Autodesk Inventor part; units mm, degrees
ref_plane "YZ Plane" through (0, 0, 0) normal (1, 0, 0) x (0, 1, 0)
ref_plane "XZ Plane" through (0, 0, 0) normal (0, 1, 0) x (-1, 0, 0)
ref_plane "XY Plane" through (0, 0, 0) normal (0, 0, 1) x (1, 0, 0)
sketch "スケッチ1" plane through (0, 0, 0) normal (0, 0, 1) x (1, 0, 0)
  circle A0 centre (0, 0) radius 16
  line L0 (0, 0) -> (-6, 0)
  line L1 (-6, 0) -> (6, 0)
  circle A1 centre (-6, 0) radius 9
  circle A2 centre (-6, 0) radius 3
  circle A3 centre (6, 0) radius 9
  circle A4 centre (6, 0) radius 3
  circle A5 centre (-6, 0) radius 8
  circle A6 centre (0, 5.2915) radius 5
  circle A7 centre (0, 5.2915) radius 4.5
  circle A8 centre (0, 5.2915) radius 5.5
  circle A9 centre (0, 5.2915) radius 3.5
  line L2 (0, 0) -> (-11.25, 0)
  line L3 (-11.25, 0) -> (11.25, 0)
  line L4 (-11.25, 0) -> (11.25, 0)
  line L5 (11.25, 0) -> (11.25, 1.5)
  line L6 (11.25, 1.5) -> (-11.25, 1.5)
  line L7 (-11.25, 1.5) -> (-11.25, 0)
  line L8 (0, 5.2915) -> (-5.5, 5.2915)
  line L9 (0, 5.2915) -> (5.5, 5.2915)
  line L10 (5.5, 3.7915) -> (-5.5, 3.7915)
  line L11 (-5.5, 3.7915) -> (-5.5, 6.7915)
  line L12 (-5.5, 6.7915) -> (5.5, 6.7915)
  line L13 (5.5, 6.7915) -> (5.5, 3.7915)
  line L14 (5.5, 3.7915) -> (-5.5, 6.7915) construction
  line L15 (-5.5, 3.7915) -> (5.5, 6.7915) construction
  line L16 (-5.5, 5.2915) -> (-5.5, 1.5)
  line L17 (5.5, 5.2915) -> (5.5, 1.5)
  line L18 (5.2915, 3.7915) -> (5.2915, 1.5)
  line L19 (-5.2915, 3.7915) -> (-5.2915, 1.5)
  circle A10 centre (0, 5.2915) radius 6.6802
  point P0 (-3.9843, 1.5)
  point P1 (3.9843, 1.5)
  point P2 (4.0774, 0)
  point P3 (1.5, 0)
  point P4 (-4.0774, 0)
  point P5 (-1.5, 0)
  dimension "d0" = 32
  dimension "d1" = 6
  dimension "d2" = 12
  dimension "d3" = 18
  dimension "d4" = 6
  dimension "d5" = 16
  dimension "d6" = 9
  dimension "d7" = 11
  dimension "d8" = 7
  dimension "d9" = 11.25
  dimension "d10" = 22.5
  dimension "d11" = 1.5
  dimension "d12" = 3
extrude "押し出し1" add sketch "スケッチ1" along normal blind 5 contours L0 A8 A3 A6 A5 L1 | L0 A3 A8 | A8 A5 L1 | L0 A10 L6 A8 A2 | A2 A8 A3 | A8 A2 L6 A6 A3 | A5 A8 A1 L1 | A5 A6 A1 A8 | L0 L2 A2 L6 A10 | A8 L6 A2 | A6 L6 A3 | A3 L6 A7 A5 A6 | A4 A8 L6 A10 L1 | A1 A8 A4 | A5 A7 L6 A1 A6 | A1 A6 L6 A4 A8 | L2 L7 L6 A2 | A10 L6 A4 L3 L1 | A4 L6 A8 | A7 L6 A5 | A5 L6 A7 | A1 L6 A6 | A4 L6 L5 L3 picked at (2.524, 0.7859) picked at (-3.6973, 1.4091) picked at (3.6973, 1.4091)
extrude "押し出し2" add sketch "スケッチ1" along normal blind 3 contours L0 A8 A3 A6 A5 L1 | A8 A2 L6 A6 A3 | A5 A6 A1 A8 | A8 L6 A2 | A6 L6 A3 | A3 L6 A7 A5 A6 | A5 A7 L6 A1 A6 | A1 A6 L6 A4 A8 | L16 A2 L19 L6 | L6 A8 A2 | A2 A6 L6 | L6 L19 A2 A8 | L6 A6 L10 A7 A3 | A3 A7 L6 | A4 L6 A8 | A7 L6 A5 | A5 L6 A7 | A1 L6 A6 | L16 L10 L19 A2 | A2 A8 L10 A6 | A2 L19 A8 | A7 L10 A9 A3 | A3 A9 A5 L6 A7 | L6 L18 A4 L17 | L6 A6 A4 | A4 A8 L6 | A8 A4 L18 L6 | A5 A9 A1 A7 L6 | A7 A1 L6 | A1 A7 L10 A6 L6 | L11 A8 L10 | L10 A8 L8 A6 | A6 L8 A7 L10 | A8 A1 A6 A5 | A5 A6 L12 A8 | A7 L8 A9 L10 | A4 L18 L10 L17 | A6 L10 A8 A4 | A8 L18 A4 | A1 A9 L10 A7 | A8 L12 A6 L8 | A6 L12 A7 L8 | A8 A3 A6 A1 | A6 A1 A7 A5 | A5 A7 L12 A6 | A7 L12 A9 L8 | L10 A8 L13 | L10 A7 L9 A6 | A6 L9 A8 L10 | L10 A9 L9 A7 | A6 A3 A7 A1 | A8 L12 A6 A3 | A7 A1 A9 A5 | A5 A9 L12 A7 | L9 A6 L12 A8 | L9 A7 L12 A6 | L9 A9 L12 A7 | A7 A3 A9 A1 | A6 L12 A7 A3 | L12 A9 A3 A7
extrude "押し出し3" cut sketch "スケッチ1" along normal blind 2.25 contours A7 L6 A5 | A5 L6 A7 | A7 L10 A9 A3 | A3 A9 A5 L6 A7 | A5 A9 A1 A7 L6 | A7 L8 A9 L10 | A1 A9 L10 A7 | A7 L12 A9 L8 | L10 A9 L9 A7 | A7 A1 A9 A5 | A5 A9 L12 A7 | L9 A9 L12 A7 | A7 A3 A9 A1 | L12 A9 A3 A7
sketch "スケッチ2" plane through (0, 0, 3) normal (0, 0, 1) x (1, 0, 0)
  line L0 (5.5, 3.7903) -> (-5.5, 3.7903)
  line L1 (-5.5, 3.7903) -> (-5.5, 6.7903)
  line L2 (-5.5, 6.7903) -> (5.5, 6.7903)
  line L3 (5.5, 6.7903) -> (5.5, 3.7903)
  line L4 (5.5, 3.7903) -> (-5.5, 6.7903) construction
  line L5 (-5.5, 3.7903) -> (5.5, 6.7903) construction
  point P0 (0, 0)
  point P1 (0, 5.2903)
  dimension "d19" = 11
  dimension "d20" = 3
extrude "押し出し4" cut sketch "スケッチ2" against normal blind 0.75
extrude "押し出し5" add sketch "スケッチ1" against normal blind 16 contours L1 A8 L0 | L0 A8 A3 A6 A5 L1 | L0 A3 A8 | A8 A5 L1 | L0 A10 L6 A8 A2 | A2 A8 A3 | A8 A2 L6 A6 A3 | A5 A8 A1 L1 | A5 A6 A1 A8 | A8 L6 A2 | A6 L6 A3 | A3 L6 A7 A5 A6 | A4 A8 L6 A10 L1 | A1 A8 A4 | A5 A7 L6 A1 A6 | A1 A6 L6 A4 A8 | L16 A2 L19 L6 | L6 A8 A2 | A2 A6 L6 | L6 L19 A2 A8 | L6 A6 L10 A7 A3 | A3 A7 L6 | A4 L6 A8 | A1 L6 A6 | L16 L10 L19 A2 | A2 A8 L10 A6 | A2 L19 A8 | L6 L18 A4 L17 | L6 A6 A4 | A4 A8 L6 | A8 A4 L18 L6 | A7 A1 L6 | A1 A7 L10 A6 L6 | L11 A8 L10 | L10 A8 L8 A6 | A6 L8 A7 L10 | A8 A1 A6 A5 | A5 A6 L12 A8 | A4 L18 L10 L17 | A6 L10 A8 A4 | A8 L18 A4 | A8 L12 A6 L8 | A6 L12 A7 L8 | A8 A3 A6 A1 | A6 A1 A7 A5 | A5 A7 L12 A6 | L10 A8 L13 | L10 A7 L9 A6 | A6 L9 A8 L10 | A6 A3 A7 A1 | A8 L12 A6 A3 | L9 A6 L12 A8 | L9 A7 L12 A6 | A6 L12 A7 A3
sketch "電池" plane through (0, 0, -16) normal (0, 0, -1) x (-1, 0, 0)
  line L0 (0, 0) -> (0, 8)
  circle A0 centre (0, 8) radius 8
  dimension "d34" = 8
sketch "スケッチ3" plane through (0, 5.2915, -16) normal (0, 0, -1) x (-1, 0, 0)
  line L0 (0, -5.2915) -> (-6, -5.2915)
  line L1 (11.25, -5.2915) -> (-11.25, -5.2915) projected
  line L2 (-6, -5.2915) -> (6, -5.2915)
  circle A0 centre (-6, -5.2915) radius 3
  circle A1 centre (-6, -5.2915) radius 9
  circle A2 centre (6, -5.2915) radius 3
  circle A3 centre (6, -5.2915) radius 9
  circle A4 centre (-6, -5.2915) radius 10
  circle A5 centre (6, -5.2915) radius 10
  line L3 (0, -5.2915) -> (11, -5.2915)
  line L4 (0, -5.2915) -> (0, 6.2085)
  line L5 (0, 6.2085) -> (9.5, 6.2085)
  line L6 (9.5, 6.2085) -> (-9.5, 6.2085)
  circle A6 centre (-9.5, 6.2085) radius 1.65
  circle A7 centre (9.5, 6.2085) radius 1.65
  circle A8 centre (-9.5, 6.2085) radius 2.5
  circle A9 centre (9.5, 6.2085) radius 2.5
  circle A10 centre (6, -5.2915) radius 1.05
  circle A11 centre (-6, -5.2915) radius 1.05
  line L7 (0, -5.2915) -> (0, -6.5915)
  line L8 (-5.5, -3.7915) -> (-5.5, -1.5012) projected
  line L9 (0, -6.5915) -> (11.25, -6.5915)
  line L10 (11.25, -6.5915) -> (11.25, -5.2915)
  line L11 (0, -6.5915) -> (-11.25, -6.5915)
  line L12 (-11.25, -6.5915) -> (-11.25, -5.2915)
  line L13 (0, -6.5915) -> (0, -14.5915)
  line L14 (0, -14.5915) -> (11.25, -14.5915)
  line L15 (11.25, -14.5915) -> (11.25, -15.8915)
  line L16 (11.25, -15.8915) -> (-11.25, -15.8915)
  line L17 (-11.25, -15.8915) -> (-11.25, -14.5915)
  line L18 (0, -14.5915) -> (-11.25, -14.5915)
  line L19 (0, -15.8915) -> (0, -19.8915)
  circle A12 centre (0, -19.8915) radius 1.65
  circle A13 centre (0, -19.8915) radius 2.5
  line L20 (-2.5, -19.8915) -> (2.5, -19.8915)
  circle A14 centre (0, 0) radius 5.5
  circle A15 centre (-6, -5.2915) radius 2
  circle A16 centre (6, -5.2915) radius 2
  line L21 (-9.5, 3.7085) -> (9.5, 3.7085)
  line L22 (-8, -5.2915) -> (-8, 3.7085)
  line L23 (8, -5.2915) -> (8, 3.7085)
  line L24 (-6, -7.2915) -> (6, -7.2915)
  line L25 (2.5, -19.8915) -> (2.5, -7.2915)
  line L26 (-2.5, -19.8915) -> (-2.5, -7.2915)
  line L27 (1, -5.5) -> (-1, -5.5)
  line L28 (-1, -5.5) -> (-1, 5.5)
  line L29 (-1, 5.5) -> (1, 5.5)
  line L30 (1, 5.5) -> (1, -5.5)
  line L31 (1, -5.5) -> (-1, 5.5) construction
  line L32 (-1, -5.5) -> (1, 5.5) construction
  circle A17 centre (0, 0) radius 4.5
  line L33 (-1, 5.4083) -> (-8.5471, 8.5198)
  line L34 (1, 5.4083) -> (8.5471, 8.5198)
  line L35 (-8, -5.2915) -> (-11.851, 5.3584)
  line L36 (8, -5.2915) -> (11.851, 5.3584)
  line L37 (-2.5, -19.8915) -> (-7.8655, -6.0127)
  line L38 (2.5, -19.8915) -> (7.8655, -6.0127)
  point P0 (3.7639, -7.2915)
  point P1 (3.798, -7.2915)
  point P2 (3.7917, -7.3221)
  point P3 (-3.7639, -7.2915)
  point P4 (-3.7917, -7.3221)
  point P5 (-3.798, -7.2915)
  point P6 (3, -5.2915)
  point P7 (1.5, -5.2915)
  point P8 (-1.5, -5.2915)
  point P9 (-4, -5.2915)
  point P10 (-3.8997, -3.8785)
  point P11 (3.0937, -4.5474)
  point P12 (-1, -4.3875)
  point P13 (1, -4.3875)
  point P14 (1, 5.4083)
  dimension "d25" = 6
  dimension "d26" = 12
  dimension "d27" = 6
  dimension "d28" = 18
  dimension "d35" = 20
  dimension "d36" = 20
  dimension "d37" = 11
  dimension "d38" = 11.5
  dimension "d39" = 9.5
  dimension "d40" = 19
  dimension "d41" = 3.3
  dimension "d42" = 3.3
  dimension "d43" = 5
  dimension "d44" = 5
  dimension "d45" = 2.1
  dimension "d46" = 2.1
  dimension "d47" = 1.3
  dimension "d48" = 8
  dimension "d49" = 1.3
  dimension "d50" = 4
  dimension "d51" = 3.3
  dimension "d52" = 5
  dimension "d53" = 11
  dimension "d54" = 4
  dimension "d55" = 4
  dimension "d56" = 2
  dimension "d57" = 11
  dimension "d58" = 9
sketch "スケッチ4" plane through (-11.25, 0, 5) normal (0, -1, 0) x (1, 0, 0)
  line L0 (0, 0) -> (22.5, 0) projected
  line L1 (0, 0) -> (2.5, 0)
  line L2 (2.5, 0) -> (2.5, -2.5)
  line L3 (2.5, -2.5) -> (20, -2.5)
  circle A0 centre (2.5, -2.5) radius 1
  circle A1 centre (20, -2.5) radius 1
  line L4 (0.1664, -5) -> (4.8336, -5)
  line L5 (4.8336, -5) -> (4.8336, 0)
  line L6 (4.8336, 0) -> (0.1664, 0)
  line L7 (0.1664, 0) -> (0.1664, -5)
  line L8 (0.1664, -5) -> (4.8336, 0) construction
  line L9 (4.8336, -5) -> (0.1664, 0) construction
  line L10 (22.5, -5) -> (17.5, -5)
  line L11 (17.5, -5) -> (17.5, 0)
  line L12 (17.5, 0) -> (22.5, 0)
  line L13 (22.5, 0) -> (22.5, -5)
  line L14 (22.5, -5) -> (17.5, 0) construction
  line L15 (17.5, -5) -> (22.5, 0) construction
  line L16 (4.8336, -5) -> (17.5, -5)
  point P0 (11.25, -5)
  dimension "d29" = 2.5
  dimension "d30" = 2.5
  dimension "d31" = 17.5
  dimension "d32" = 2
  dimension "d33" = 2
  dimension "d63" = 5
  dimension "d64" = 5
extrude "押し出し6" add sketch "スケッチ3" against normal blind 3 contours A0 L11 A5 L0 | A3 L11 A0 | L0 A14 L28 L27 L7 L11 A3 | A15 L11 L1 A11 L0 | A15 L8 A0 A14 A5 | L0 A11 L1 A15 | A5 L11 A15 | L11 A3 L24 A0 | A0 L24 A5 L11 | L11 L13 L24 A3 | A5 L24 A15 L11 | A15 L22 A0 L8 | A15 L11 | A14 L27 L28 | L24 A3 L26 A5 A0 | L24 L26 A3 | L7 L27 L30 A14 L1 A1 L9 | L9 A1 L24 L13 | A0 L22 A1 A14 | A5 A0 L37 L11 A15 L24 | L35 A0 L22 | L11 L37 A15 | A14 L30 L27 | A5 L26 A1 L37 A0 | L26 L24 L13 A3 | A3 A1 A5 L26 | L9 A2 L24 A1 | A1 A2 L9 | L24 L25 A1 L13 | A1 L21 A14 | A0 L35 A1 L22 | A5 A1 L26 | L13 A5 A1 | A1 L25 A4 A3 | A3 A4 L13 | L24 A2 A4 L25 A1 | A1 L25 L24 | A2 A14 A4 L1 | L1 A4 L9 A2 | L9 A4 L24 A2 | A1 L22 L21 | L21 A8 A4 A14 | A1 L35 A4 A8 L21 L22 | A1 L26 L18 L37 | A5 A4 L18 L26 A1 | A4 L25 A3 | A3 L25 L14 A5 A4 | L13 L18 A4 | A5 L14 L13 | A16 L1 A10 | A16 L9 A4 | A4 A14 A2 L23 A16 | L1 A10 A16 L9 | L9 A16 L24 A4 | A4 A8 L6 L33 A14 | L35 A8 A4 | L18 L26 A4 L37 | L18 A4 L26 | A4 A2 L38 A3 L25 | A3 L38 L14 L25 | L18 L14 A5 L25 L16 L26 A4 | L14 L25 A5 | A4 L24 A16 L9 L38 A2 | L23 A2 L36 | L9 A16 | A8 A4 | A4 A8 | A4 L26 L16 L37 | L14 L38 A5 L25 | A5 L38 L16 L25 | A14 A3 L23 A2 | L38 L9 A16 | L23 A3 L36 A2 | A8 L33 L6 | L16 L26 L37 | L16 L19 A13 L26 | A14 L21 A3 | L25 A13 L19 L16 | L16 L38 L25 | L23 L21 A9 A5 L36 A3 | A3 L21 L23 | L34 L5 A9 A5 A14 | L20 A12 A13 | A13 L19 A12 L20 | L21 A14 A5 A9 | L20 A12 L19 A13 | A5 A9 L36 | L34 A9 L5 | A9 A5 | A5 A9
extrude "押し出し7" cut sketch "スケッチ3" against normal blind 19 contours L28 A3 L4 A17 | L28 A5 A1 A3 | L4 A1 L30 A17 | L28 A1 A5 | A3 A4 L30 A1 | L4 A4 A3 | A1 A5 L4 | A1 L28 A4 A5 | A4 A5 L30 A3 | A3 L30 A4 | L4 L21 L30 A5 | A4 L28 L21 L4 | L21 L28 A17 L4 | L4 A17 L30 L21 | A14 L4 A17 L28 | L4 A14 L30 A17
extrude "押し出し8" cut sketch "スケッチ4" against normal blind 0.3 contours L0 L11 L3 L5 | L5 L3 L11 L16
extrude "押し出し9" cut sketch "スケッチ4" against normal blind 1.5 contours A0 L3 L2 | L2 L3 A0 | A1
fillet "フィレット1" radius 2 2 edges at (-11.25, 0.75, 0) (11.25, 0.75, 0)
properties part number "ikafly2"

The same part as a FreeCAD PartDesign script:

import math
import FreeCAD as App
import Part
import Sketcher
from FreeCAD import Vector


def edges_at(feature, points):
    """Names of the edges that pass closest to the given points."""
    edges = feature.Shape.Edges
    near = lambda p: min(range(len(edges)), key=lambda i: edges[i].distToShape(Part.Vertex(*p))[0])
    return sorted({f"Edge{near(p) + 1}" for p in points})

doc = App.newDocument("Part")
body = doc.addObject("PartDesign::Body", "Body")

# Sketch on XY plane
sketch1 = doc.addObject("Sketcher::SketchObject", "Sketch")
body.addObject(sketch1)
sketch1.AttachmentSupport = (doc.XY_Plane, [""])
sketch1.MapMode = "FlatFace"
sketch1.addGeometry(Part.LineSegment(Vector(11.2, 0, 0), Vector(11.2, 1.5, 0)), False)
sketch1.addGeometry(Part.LineSegment(Vector(11.2, 1.5, 0), Vector(-11.2, 1.5, 0)), False)
sketch1.addGeometry(Part.LineSegment(Vector(-11.2, 1.5, 0), Vector(-11.2, 0, 0)), False)
sketch1.addGeometry(Part.LineSegment(Vector(-11.2, 0, 0), Vector(11.2, 0, 0)), False)
sketch1.addConstraint(Sketcher.Constraint("Coincident", 0, 2, 1, 1))
sketch1.addConstraint(Sketcher.Constraint("Coincident", 1, 2, 2, 1))
sketch1.addConstraint(Sketcher.Constraint("Coincident", 2, 2, 3, 1))
sketch1.addConstraint(Sketcher.Constraint("Coincident", 3, 2, 0, 1))
sketch1.addConstraint(Sketcher.Constraint("Vertical", 0))
sketch1.addConstraint(Sketcher.Constraint("Horizontal", 1))
sketch1.addConstraint(Sketcher.Constraint("Vertical", 2))
sketch1.addConstraint(Sketcher.Constraint("Horizontal", 3))
sketch1.addConstraint(Sketcher.Constraint("Symmetric", 2, 2, 3, 2, -1, 1))
sketch1.addConstraint(Sketcher.Constraint("DistanceX", 1, 2, 1, 1, 22.5))
sketch1.addConstraint(Sketcher.Constraint("DistanceY", 0, 1, 0, 2, 1.5))
pad1 = doc.addObject("PartDesign::Pad", "Pad")
body.addObject(pad1)
pad1.Profile = sketch1
pad1.Length = 5

# Sketch on XY plane
sketch2 = doc.addObject("Sketcher::SketchObject", "Sketch001")
body.addObject(sketch2)
sketch2.AttachmentSupport = (doc.XY_Plane, [""])
sketch2.MapMode = "FlatFace"
sketch2.addGeometry(Part.LineSegment(Vector(-1.5, 0, 0), Vector(1.5, 0, 0)), False)
sketch2.addGeometry(Part.ArcOfCircle(Part.Circle(Vector(0, 5.3, 0), Vector(0, 0, 1), 5.5), math.radians(-74), math.radians(-44)), False)
sketch2.addGeometry(Part.LineSegment(Vector(4, 1.5, 0), Vector(5.5, 1.5, 0)), False)
sketch2.addGeometry(Part.LineSegment(Vector(5.5, 1.5, 0), Vector(5.5, 5.3, 0)), False)
sketch2.addGeometry(Part.ArcOfCircle(Part.Circle(Vector(0, 5.3, 0), Vector(0, 0, 1), 5.5), math.radians(0), math.radians(180)), False)
sketch2.addGeometry(Part.LineSegment(Vector(-5.5, 5.3, 0), Vector(-5.5, 1.5, 0)), False)
sketch2.addGeometry(Part.LineSegment(Vector(-5.5, 1.5, 0), Vector(-4, 1.5, 0)), False)
sketch2.addGeometry(Part.ArcOfCircle(Part.Circle(Vector(0, 5.3, 0), Vector(0, 0, 1), 5.5), math.radians(-136), math.radians(-106)), False)
sketch2.addGeometry(Part.Circle(Vector(0, 5.3, 0), Vector(0, 0, 1), 3.5), False)
sketch2.addConstraint(Sketcher.Constraint("Coincident", 0, 2, 1, 1))
sketch2.addConstraint(Sketcher.Constraint("Coincident", 1, 2, 2, 1))
sketch2.addConstraint(Sketcher.Constraint("Coincident", 2, 2, 3, 1))
sketch2.addConstraint(Sketcher.Constraint("Tangent", 3, 2, 4, 1))
sketch2.addConstraint(Sketcher.Constraint("Tangent", 4, 2, 5, 1))
sketch2.addConstraint(Sketcher.Constraint("Coincident", 5, 2, 6, 1))
sketch2.addConstraint(Sketcher.Constraint("Coincident", 6, 2, 7, 1))
sketch2.addConstraint(Sketcher.Constraint("Coincident", 7, 2, 0, 1))
sketch2.addConstraint(Sketcher.Constraint("Horizontal", 0))
sketch2.addConstraint(Sketcher.Constraint("Horizontal", 2))
sketch2.addConstraint(Sketcher.Constraint("Vertical", 3))
sketch2.addConstraint(Sketcher.Constraint("Vertical", 5))
sketch2.addConstraint(Sketcher.Constraint("Horizontal", 6))
sketch2.addConstraint(Sketcher.Constraint("Coincident", 4, 3, 1, 3))
sketch2.addConstraint(Sketcher.Constraint("Coincident", 7, 3, 1, 3))
sketch2.addConstraint(Sketcher.Constraint("Coincident", 8, 3, 1, 3))
sketch2.addConstraint(Sketcher.Constraint("Equal", 1, 4))
sketch2.addConstraint(Sketcher.Constraint("Equal", 4, 7))
sketch2.addConstraint(Sketcher.Constraint("Symmetric", 0, 2, 7, 2, -1, 1))
sketch2.addConstraint(Sketcher.Constraint("Horizontal", 2, 2, 5, 2))
sketch2.addConstraint(Sketcher.Constraint("Diameter", 8, 7.0))
sketch2.addConstraint(Sketcher.Constraint("Radius", 1, 5.5))
sketch2.addConstraint(Sketcher.Constraint("DistanceX", 0, 1, 0, 2, 3.0))
sketch2.addConstraint(Sketcher.Constraint("DistanceY", -1, 1, 1, 2, 1.5))
pad2 = doc.addObject("PartDesign::Pad", "Pad001")
body.addObject(pad2)
pad2.Profile = sketch2
pad2.Length = 3

# Sketch on XY plane
sketch3 = doc.addObject("Sketcher::SketchObject", "Sketch002")
body.addObject(sketch3)
sketch3.AttachmentSupport = (doc.XY_Plane, [""])
sketch3.MapMode = "FlatFace"
sketch3.addGeometry(Part.Circle(Vector(0, 5.3, 0), Vector(0, 0, 1), 4.5), False)
sketch3.addGeometry(Part.Circle(Vector(0, 5.3, 0), Vector(0, 0, 1), 3.5), False)
sketch3.addConstraint(Sketcher.Constraint("Coincident", 1, 3, 0, 3))
sketch3.addConstraint(Sketcher.Constraint("PointOnObject", 0, 3, -2))
sketch3.addConstraint(Sketcher.Constraint("Diameter", 0, 9.0))
sketch3.addConstraint(Sketcher.Constraint("Diameter", 1, 7.0))
sketch3.addConstraint(Sketcher.Constraint("DistanceY", -1, 1, 0, 3, 5.2915))
pocket1 = doc.addObject("PartDesign::Pocket", "Pocket")
body.addObject(pocket1)
pocket1.Profile = sketch3
pocket1.Length = 2.25
pocket1.Reversed = True

# Sketch on XY plane
sketch4 = doc.addObject("Sketcher::SketchObject", "Sketch003")
body.addObject(sketch4)
sketch4.AttachmentSupport = (doc.XY_Plane, [""])
sketch4.MapMode = "FlatFace"
sketch4.AttachmentOffset = App.Placement(Vector(0, 0, 3), App.Rotation())
sketch4.addGeometry(Part.LineSegment(Vector(-5.5, 3.8, 0), Vector(5.5, 3.8, 0)), False)
sketch4.addGeometry(Part.LineSegment(Vector(5.5, 3.8, 0), Vector(5.5, 6.8, 0)), False)
sketch4.addGeometry(Part.LineSegment(Vector(5.5, 6.8, 0), Vector(-5.5, 6.8, 0)), False)
sketch4.addGeometry(Part.LineSegment(Vector(-5.5, 6.8, 0), Vector(-5.5, 3.8, 0)), False)
sketch4.addConstraint(Sketcher.Constraint("Coincident", 0, 2, 1, 1))
sketch4.addConstraint(Sketcher.Constraint("Coincident", 1, 2, 2, 1))
sketch4.addConstraint(Sketcher.Constraint("Coincident", 2, 2, 3, 1))
sketch4.addConstraint(Sketcher.Constraint("Coincident", 3, 2, 0, 1))
sketch4.addConstraint(Sketcher.Constraint("Horizontal", 0))
sketch4.addConstraint(Sketcher.Constraint("Vertical", 1))
sketch4.addConstraint(Sketcher.Constraint("Horizontal", 2))
sketch4.addConstraint(Sketcher.Constraint("Vertical", 3))
sketch4.addConstraint(Sketcher.Constraint("DistanceX", 0, 1, 0, 2, 11.0))
sketch4.addConstraint(Sketcher.Constraint("DistanceY", 1, 1, 1, 2, 3.0))
sketch4.addConstraint(Sketcher.Constraint("DistanceX", -1, 1, 0, 2, 5.5))
sketch4.addConstraint(Sketcher.Constraint("DistanceY", -1, 1, 0, 2, 3.7903))
pocket2 = doc.addObject("PartDesign::Pocket", "Pocket001")
body.addObject(pocket2)
pocket2.Profile = sketch4
pocket2.Length = 0.75

# Sketch on XY plane
sketch5 = doc.addObject("Sketcher::SketchObject", "Sketch004")
body.addObject(sketch5)
sketch5.AttachmentSupport = (doc.XY_Plane, [""])
sketch5.MapMode = "FlatFace"
sketch5.addGeometry(Part.ArcOfCircle(Part.Circle(Vector(0, 5.3, 0), Vector(0, 0, 1), 5.5), math.radians(-106), math.radians(-74)), False)
sketch5.addGeometry(Part.LineSegment(Vector(1.5, 0, 0), Vector(4.1, 0, 0)), False)
sketch5.addGeometry(Part.ArcOfCircle(Part.Circle(Vector(0, 5.3, 0), Vector(0, 0, 1), 6.7), math.radians(-52.38), math.radians(-34.58)), False)
sketch5.addGeometry(Part.LineSegment(Vector(5.5, 1.5, 0), Vector(5.5, 5.3, 0)), False)
sketch5.addGeometry(Part.ArcOfCircle(Part.Circle(Vector(0, 5.3, 0), Vector(0, 0, 1), 5.5), math.radians(0), math.radians(180)), False)
sketch5.addGeometry(Part.LineSegment(Vector(-5.5, 5.3, 0), Vector(-5.5, 1.5, 0)), False)
sketch5.addGeometry(Part.ArcOfCircle(Part.Circle(Vector(0, 5.3, 0), Vector(0, 0, 1), 6.7), math.radians(-145.42), math.radians(-127.62)), False)
sketch5.addGeometry(Part.LineSegment(Vector(-4.1, 0, 0), Vector(-1.5, 0, 0)), False)
sketch5.addGeometry(Part.Circle(Vector(0, 5.3, 0), Vector(0, 0, 1), 4.5), False)
sketch5.addConstraint(Sketcher.Constraint("Coincident", 0, 2, 1, 1))
sketch5.addConstraint(Sketcher.Constraint("Coincident", 1, 2, 2, 1))
sketch5.addConstraint(Sketcher.Constraint("Coincident", 2, 2, 3, 1))
sketch5.addConstraint(Sketcher.Constraint("Tangent", 3, 2, 4, 1))
sketch5.addConstraint(Sketcher.Constraint("Tangent", 4, 2, 5, 1))
sketch5.addConstraint(Sketcher.Constraint("Coincident", 5, 2, 6, 1))
sketch5.addConstraint(Sketcher.Constraint("Coincident", 6, 2, 7, 1))
sketch5.addConstraint(Sketcher.Constraint("Coincident", 7, 2, 0, 1))
sketch5.addConstraint(Sketcher.Constraint("Horizontal", 1))
sketch5.addConstraint(Sketcher.Constraint("Vertical", 3))
sketch5.addConstraint(Sketcher.Constraint("Vertical", 5))
sketch5.addConstraint(Sketcher.Constraint("Horizontal", 7))
sketch5.addConstraint(Sketcher.Constraint("Coincident", 2, 3, 0, 3))
sketch5.addConstraint(Sketcher.Constraint("Coincident", 4, 3, 0, 3))
sketch5.addConstraint(Sketcher.Constraint("Coincident", 6, 3, 0, 3))
sketch5.addConstraint(Sketcher.Constraint("Coincident", 8, 3, 0, 3))
sketch5.addConstraint(Sketcher.Constraint("Equal", 0, 4))
sketch5.addConstraint(Sketcher.Constraint("Equal", 2, 6))
sketch5.addConstraint(Sketcher.Constraint("Symmetric", 1, 2, 6, 2, -1, 1))
sketch5.addConstraint(Sketcher.Constraint("PointOnObject", 0, 3, -2))
sketch5.addConstraint(Sketcher.Constraint("Diameter", 8, 9.0))
sketch5.addConstraint(Sketcher.Constraint("Radius", 0, 5.5))
sketch5.addConstraint(Sketcher.Constraint("DistanceX", 7, 2, 0, 2, 3.0))
sketch5.addConstraint(Sketcher.Constraint("DistanceY", -1, 1, 2, 2, 1.5))
pad3 = doc.addObject("PartDesign::Pad", "Pad002")
body.addObject(pad3)
pad3.Profile = sketch5
pad3.Length = 16
pad3.Reversed = True

# Sketch on XY plane
sketch6 = doc.addObject("Sketcher::SketchObject", "Sketch005")
body.addObject(sketch6)
sketch6.AttachmentSupport = (doc.XY_Plane, [""])
sketch6.MapMode = "FlatFace"
sketch6.AttachmentOffset = App.Placement(Vector(0, 0, -16), App.Rotation())
sketch6.addGeometry(Part.ArcOfCircle(Part.Circle(Vector(-6, 0, 0), Vector(0, 0, 1), 10), math.radians(0), math.radians(8.12)), False)
sketch6.addGeometry(Part.ArcOfCircle(Part.Circle(Vector(0, 5.292, 0), Vector(0, 0, 1), 5.5), math.radians(-45), math.radians(80)), False)
sketch6.addGeometry(Part.LineSegment(Vector(1, 10.7, 0), Vector(8.547, 13.811, 0)), False)
sketch6.addGeometry(Part.ArcOfCircle(Part.Circle(Vector(9.5, 11.5, 0), Vector(0, 0, 1), 2.5), math.radians(-20), math.radians(112)), False)
sketch6.addGeometry(Part.LineSegment(Vector(11.851, 10.65, 0), Vector(8, 0, 0)), False)
sketch6.addGeometry(Part.ArcOfCircle(Part.Circle(Vector(6, 0, 0), Vector(0, 0, 1), 2), math.radians(-21), math.radians(0)), False)
sketch6.addGeometry(Part.LineSegment(Vector(7.865, -0.721, 0), Vector(2.5, -14.6, 0)), False)
sketch6.addGeometry(Part.ArcOfCircle(Part.Circle(Vector(0, -14.6, 0), Vector(0, 0, 1), 2.5), math.radians(180), math.radians(360)), False)
sketch6.addGeometry(Part.LineSegment(Vector(-2.5, -14.6, 0), Vector(-7.865, -0.721, 0)), False)
sketch6.addGeometry(Part.ArcOfCircle(Part.Circle(Vector(-6, 0, 0), Vector(0, 0, 1), 2), math.radians(180), math.radians(201)), False)
sketch6.addGeometry(Part.LineSegment(Vector(-8, 0, 0), Vector(-11.851, 10.65, 0)), False)
sketch6.addGeometry(Part.ArcOfCircle(Part.Circle(Vector(-9.5, 11.5, 0), Vector(0, 0, 1), 2.5), math.radians(68), math.radians(200)), False)
sketch6.addGeometry(Part.LineSegment(Vector(-8.547, 13.811, 0), Vector(-1, 10.7, 0)), False)
sketch6.addGeometry(Part.ArcOfCircle(Part.Circle(Vector(0, 5.292, 0), Vector(0, 0, 1), 5.5), math.radians(100), math.radians(236)), False)
sketch6.addGeometry(Part.ArcOfCircle(Part.Circle(Vector(-6, 0, 0), Vector(0, 0, 1), 3), math.radians(0), math.radians(14.36)), False)
sketch6.addGeometry(Part.LineSegment(Vector(-3, 0, 0), Vector(-1.5, 0, 0)), False)
sketch6.addGeometry(Part.ArcOfCircle(Part.Circle(Vector(0, 5.292, 0), Vector(0, 0, 1), 5.5), math.radians(-106), math.radians(-74)), False)
sketch6.addGeometry(Part.LineSegment(Vector(1.5, 0, 0), Vector(4, 0, 0)), False)
sketch6.addGeometry(Part.LineSegment(Vector(3.798, -2, 0), Vector(3.764, -2, 0)), False)
sketch6.addGeometry(Part.ArcOfCircle(Part.Circle(Vector(6, 0, 0), Vector(0, 0, 1), 3), math.radians(-138.19), math.radians(-137.4)), False)
sketch6.addGeometry(Part.ArcOfCircle(Part.Circle(Vector(-6, 0, 0), Vector(0, 0, 1), 10), math.radians(-11.72), math.radians(-11.54)), False)
sketch6.addGeometry(Part.Circle(Vector(6, 0, 0), Vector(0, 0, 1), 1.05), False)
sketch6.addGeometry(Part.ArcOfCircle(Part.Circle(Vector(-6, 0, 0), Vector(0, 0, 1), 3), math.radians(-42.6), math.radians(-41.81)), False)
sketch6.addGeometry(Part.LineSegment(Vector(-3.764, -2, 0), Vector(-3.798, -2, 0)), False)
sketch6.addGeometry(Part.ArcOfCircle(Part.Circle(Vector(6, 0, 0), Vector(0, 0, 1), 10), math.radians(-168.46), math.radians(-168.28)), False)
sketch6.addGeometry(Part.Circle(Vector(-6, 0, 0), Vector(0, 0, 1), 1.05), False)
sketch6.addGeometry(Part.Circle(Vector(9.5, 11.5, 0), Vector(0, 0, 1), 1.65), False)
sketch6.addGeometry(Part.Circle(Vector(0, -14.6, 0), Vector(0, 0, 1), 1.65), False)
sketch6.addGeometry(Part.Circle(Vector(-9.5, 11.5, 0), Vector(0, 0, 1), 1.65), False)
sketch6.addConstraint(Sketcher.Constraint("Coincident", 0, 2, 1, 1))
sketch6.addConstraint(Sketcher.Constraint("Coincident", 1, 2, 2, 1))
sketch6.addConstraint(Sketcher.Constraint("Tangent", 2, 2, 3, 2))
sketch6.addConstraint(Sketcher.Constraint("Tangent", 3, 1, 4, 1))
sketch6.addConstraint(Sketcher.Constraint("Coincident", 4, 2, 5, 2))
sketch6.addConstraint(Sketcher.Constraint("Tangent", 5, 1, 6, 1))
sketch6.addConstraint(Sketcher.Constraint("Coincident", 6, 2, 7, 2))
sketch6.addConstraint(Sketcher.Constraint("Coincident", 7, 1, 8, 1))
sketch6.addConstraint(Sketcher.Constraint("Tangent", 8, 2, 9, 2))
sketch6.addConstraint(Sketcher.Constraint("Coincident", 9, 1, 10, 1))
sketch6.addConstraint(Sketcher.Constraint("Tangent", 10, 2, 11, 2))
sketch6.addConstraint(Sketcher.Constraint("Tangent", 11, 1, 12, 1))
sketch6.addConstraint(Sketcher.Constraint("Coincident", 12, 2, 13, 1))
sketch6.addConstraint(Sketcher.Constraint("Coincident", 13, 2, 14, 2))
sketch6.addConstraint(Sketcher.Constraint("Coincident", 14, 1, 15, 1))
sketch6.addConstraint(Sketcher.Constraint("Coincident", 15, 2, 16, 1))
sketch6.addConstraint(Sketcher.Constraint("Coincident", 16, 2, 17, 1))
sketch6.addConstraint(Sketcher.Constraint("Coincident", 17, 2, 0, 1))
sketch6.addConstraint(Sketcher.Constraint("Coincident", 18, 2, 19, 1))
sketch6.addConstraint(Sketcher.Constraint("Coincident", 19, 2, 20, 1))
sketch6.addConstraint(Sketcher.Constraint("Coincident", 20, 2, 18, 1))
sketch6.addConstraint(Sketcher.Constraint("Coincident", 22, 2, 23, 1))
sketch6.addConstraint(Sketcher.Constraint("Coincident", 23, 2, 24, 1))
sketch6.addConstraint(Sketcher.Constraint("Coincident", 24, 2, 22, 1))
sketch6.addConstraint(Sketcher.Constraint("Horizontal", 15))
sketch6.addConstraint(Sketcher.Constraint("Horizontal", 17))
sketch6.addConstraint(Sketcher.Constraint("Horizontal", 18))
sketch6.addConstraint(Sketcher.Constraint("Horizontal", 23))
sketch6.addConstraint(Sketcher.Constraint("Coincident", 9, 3, 0, 3))
sketch6.addConstraint(Sketcher.Constraint("Coincident", 13, 3, 1, 3))
sketch6.addConstraint(Sketcher.Constraint("Coincident", 14, 3, 0, 3))
sketch6.addConstraint(Sketcher.Constraint("Coincident", 16, 3, 1, 3))
sketch6.addConstraint(Sketcher.Constraint("Coincident", 19, 3, 5, 3))
sketch6.addConstraint(Sketcher.Constraint("Coincident", 20, 3, 0, 3))
sketch6.addConstraint(Sketcher.Constraint("Coincident", 21, 3, 5, 3))
sketch6.addConstraint(Sketcher.Constraint("Coincident", 22, 3, 0, 3))
sketch6.addConstraint(Sketcher.Constraint("Coincident", 24, 3, 5, 3))
sketch6.addConstraint(Sketcher.Constraint("Coincident", 25, 3, 0, 3))
sketch6.addConstraint(Sketcher.Constraint("Coincident", 26, 3, 3, 3))
sketch6.addConstraint(Sketcher.Constraint("Coincident", 27, 3, 7, 3))
sketch6.addConstraint(Sketcher.Constraint("Coincident", 28, 3, 11, 3))
sketch6.addConstraint(Sketcher.Constraint("Equal", 3, 7))
sketch6.addConstraint(Sketcher.Constraint("Equal", 5, 9))
sketch6.addConstraint(Sketcher.Constraint("Equal", 7, 11))
sketch6.addConstraint(Sketcher.Constraint("Equal", 1, 13))
sketch6.addConstraint(Sketcher.Constraint("Equal", 13, 16))
sketch6.addConstraint(Sketcher.Constraint("Equal", 14, 19))
sketch6.addConstraint(Sketcher.Constraint("Equal", 0, 20))
sketch6.addConstraint(Sketcher.Constraint("Equal", 19, 22))
sketch6.addConstraint(Sketcher.Constraint("Equal", 20, 24))
sketch6.addConstraint(Sketcher.Constraint("Equal", 21, 25))
sketch6.addConstraint(Sketcher.Constraint("Equal", 26, 27))
sketch6.addConstraint(Sketcher.Constraint("Equal", 27, 28))
sketch6.addConstraint(Sketcher.Constraint("Symmetric", 0, 3, 5, 3, -1, 1))
sketch6.addConstraint(Sketcher.Constraint("Symmetric", 15, 2, 16, 2, -1, 1))
sketch6.addConstraint(Sketcher.Constraint("Symmetric", 3, 3, 11, 3, -2))
sketch6.addConstraint(Sketcher.Constraint("Symmetric", 6, 2, 7, 1, -2))
sketch6.addConstraint(Sketcher.Constraint("Symmetric", 1, 2, 12, 2, -2))
sketch6.addConstraint(Sketcher.Constraint("Symmetric", 18, 2, 22, 2, -2))
sketch6.addConstraint(Sketcher.Constraint("PointOnObject", 4, 2, -1))
sketch6.addConstraint(Sketcher.Constraint("PointOnObject", 9, 1, -1))
sketch6.addConstraint(Sketcher.Constraint("Horizontal", 27, 3, 6, 2))
sketch6.addConstraint(Sketcher.Constraint("Radius", 0, 10.0))
sketch6.addConstraint(Sketcher.Constraint("Radius", 5, 2.0))
sketch6.addConstraint(Sketcher.Constraint("Radius", 14, 3.0))
sketch6.addConstraint(Sketcher.Constraint("Diameter", 21, 2.1))
sketch6.addConstraint(Sketcher.Constraint("Diameter", 26, 3.3))
sketch6.addConstraint(Sketcher.Constraint("Radius", 1, 5.5))
sketch6.addConstraint(Sketcher.Constraint("Radius", 3, 2.5))
sketch6.addConstraint(Sketcher.Constraint("DistanceX", 0, 3, -1, 1, 6.0))
sketch6.addConstraint(Sketcher.Constraint("DistanceY", 18, 2, -1, 1, 2.0))
sketch6.addConstraint(Sketcher.Constraint("DistanceX", 11, 3, 3, 3, 19.0))
sketch6.addConstraint(Sketcher.Constraint("DistanceX", 12, 2, 1, 2, 2.0))
sketch6.addConstraint(Sketcher.Constraint("DistanceY", -1, 1, 3, 3, 11.5))
sketch6.addConstraint(Sketcher.Constraint("DistanceX", 15, 1, 15, 2, 1.5))
sketch6.addConstraint(Sketcher.Constraint("DistanceY", 7, 3, -1, 1, 14.6))
pad4 = doc.addObject("PartDesign::Pad", "Pad003")
body.addObject(pad4)
pad4.Profile = sketch6
pad4.Length = 3

# Sketch on XY plane
sketch7 = doc.addObject("Sketcher::SketchObject", "Sketch006")
body.addObject(sketch7)
sketch7.AttachmentSupport = (doc.XY_Plane, [""])
sketch7.MapMode = "FlatFace"
sketch7.AttachmentOffset = App.Placement(Vector(0, 0, -16), App.Rotation())
sketch7.addGeometry(Part.ArcOfCircle(Part.Circle(Vector(0, 5.3, 0), Vector(0, 0, 1), 4.5), math.radians(-103), math.radians(-77)), False)
sketch7.addGeometry(Part.LineSegment(Vector(-1, 0.9, 0), Vector(-1, 10.7, 0)), False)
sketch7.addGeometry(Part.ArcOfCircle(Part.Circle(Vector(0, 5.3, 0), Vector(0, 0, 1), 5.5), math.radians(80), math.radians(100)), False)
sketch7.addGeometry(Part.LineSegment(Vector(1, 10.7, 0), Vector(1, 0.9, 0)), False)
sketch7.addConstraint(Sketcher.Constraint("Coincident", 0, 1, 1, 1))
sketch7.addConstraint(Sketcher.Constraint("Coincident", 1, 2, 2, 2))
sketch7.addConstraint(Sketcher.Constraint("Coincident", 2, 1, 3, 1))
sketch7.addConstraint(Sketcher.Constraint("Coincident", 3, 2, 0, 2))
sketch7.addConstraint(Sketcher.Constraint("Vertical", 1))
sketch7.addConstraint(Sketcher.Constraint("Vertical", 3))
sketch7.addConstraint(Sketcher.Constraint("Coincident", 2, 3, 0, 3))
sketch7.addConstraint(Sketcher.Constraint("Symmetric", 1, 2, 2, 1, -2))
sketch7.addConstraint(Sketcher.Constraint("Radius", 0, 4.5))
sketch7.addConstraint(Sketcher.Constraint("Radius", 2, 5.5))
sketch7.addConstraint(Sketcher.Constraint("DistanceX", 1, 2, 2, 1, 2.0))
sketch7.addConstraint(Sketcher.Constraint("DistanceY", -1, 1, 0, 1, 0.904))
pocket3 = doc.addObject("PartDesign::Pocket", "Pocket002")
body.addObject(pocket3)
pocket3.Profile = sketch7
pocket3.Length = 19
pocket3.Reversed = True

# Sketch on XZ plane
sketch8 = doc.addObject("Sketcher::SketchObject", "Sketch007")
body.addObject(sketch8)
sketch8.AttachmentSupport = (doc.XZ_Plane, [""])
sketch8.MapMode = "FlatFace"
sketch8.addGeometry(Part.LineSegment(Vector(6, 5, 0), Vector(-6, 5, 0)), False)
sketch8.addGeometry(Part.LineSegment(Vector(-6, 5, 0), Vector(-6, 0, 0)), False)
sketch8.addGeometry(Part.LineSegment(Vector(-6, 0, 0), Vector(6, 0, 0)), False)
sketch8.addGeometry(Part.LineSegment(Vector(6, 0, 0), Vector(6, 5, 0)), False)
sketch8.addConstraint(Sketcher.Constraint("Coincident", 0, 2, 1, 1))
sketch8.addConstraint(Sketcher.Constraint("Coincident", 1, 2, 2, 1))
sketch8.addConstraint(Sketcher.Constraint("Coincident", 2, 2, 3, 1))
sketch8.addConstraint(Sketcher.Constraint("Coincident", 3, 2, 0, 1))
sketch8.addConstraint(Sketcher.Constraint("Horizontal", 0))
sketch8.addConstraint(Sketcher.Constraint("Vertical", 1))
sketch8.addConstraint(Sketcher.Constraint("Horizontal", 2))
sketch8.addConstraint(Sketcher.Constraint("Vertical", 3))
sketch8.addConstraint(Sketcher.Constraint("PointOnObject", 1, 2, -1))
sketch8.addConstraint(Sketcher.Constraint("DistanceY", 1, 2, 1, 1, 5.0))
sketch8.addConstraint(Sketcher.Constraint("DistanceX", -1, 1, 2, 2, 6.25))
sketch8.addConstraint(Sketcher.Constraint("DistanceX", 0, 2, 0, 1, 12.6664))
pocket4 = doc.addObject("PartDesign::Pocket", "Pocket003")
body.addObject(pocket4)
pocket4.Profile = sketch8
pocket4.Length = 0.3

# Sketch on XZ plane
sketch9 = doc.addObject("Sketcher::SketchObject", "Sketch008")
body.addObject(sketch9)
sketch9.AttachmentSupport = (doc.XZ_Plane, [""])
sketch9.MapMode = "FlatFace"
sketch9.addGeometry(Part.Circle(Vector(-8.8, 2.5, 0), Vector(0, 0, 1), 1), False)
sketch9.addGeometry(Part.Circle(Vector(8.8, 2.5, 0), Vector(0, 0, 1), 1), False)
sketch9.addConstraint(Sketcher.Constraint("Equal", 0, 1))
sketch9.addConstraint(Sketcher.Constraint("Symmetric", 0, 3, 1, 3, -2))
sketch9.addConstraint(Sketcher.Constraint("Diameter", 0, 2.0))
sketch9.addConstraint(Sketcher.Constraint("DistanceY", -1, 1, 0, 3, 2.5))
sketch9.addConstraint(Sketcher.Constraint("DistanceX", 0, 3, 1, 3, 17.5))
pocket5 = doc.addObject("PartDesign::Pocket", "Pocket004")
body.addObject(pocket5)
pocket5.Profile = sketch9
pocket5.Length = 1.5
doc.recompute()

fillet = doc.addObject("PartDesign::Fillet", "Fillet")
body.addObject(fillet)
fillet.Base = (pocket5, edges_at(pocket5, [(-11.25, 0.75, 0), (11.25, 0.75, 0)]))
fillet.Radius = 2

doc.recompute()
